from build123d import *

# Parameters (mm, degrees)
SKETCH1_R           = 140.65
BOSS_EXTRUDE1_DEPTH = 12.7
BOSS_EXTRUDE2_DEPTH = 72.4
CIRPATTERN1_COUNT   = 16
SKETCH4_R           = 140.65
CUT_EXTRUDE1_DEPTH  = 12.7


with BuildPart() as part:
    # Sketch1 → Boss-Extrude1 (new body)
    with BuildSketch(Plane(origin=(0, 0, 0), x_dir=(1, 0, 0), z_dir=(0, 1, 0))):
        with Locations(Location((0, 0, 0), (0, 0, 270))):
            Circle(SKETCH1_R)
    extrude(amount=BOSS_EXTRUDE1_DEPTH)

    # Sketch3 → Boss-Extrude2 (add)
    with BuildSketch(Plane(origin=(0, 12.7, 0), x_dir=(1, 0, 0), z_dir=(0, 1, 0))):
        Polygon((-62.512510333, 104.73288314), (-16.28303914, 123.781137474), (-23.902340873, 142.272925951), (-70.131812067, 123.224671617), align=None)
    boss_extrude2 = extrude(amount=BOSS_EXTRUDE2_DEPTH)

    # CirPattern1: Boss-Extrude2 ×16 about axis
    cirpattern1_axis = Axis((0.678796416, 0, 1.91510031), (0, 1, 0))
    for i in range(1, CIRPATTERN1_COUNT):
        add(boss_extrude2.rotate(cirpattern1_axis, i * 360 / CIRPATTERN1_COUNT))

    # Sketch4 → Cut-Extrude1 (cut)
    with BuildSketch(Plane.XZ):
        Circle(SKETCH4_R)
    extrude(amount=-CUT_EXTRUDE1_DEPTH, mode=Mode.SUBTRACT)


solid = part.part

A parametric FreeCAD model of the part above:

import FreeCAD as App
import Part
import Sketcher
from FreeCAD import Vector

doc = App.newDocument("Part")
params = doc.addObject("Spreadsheet::Sheet", "Params")
for row, (alias, value) in enumerate([
    ("sketch1_diameter", "281.3 mm"),
    ("pad1_length", "12.7 mm"),
    ("sketch2_length", "50 mm"),
    ("sketch2_length2", "20 mm"),
    ("pad2_length", "72.4 mm"),
    ("sketch3_diameter", "281.3 mm"),
    ("pocket1_length", "12.7 mm"),
], start=1):
    params.set(f"A{row}", alias)
    params.set(f"B{row}", "=" + value)
    params.setAlias(f"B{row}", alias)

body = doc.addObject("PartDesign::Body", "Body")

# Sketch on XZ plane
sketch1 = body.newObject("Sketcher::SketchObject", "Sketch")
sketch1.AttachmentSupport = (doc.getObject("XZ_Plane"), [""])
sketch1.MapMode = "FlatFace"
sketch1.addGeometry(Part.Circle(Vector(0, 0, 0), Vector(0, 0, 1), 141), False)
sketch1.addConstraint([
    Sketcher.Constraint("Coincident", 0, 3, -1, 1),
    Sketcher.Constraint("Diameter", 0, 281.3),
])
sketch1.setExpression("Constraints[1]", "Params.sketch1_diameter")
pad1 = body.newObject("PartDesign::Pad", "Pad")
pad1.Profile = sketch1
pad1.setExpression("Length", "Params.pad1_length")
pad1.Reversed = True

# Sketch on XZ plane
sketch2 = body.newObject("Sketcher::SketchObject", "Sketch001")
sketch2.AttachmentSupport = (doc.getObject("XZ_Plane"), [""])
sketch2.MapMode = "FlatFace"
sketch2.AttachmentOffset = App.Placement(Vector(0, 0, -12.7), App.Rotation())
sketch2.addGeometry([
    Part.LineSegment(Vector(-63, -105, 0), Vector(-16, -124, 0)),
    Part.LineSegment(Vector(-16, -124, 0), Vector(-24, -142, 0)),
    Part.LineSegment(Vector(-24, -142, 0), Vector(-70, -123, 0)),
    Part.LineSegment(Vector(-70, -123, 0), Vector(-63, -105, 0)),
], False)
sketch2.addConstraint([
    Sketcher.Constraint("Coincident", 0, 2, 1, 1),
    Sketcher.Constraint("Coincident", 1, 2, 2, 1),
    Sketcher.Constraint("Coincident", 2, 2, 3, 1),
    Sketcher.Constraint("Coincident", 3, 2, 0, 1),
    Sketcher.Constraint("Perpendicular", 0, 1),
    Sketcher.Constraint("Perpendicular", 1, 2),
    Sketcher.Constraint("Perpendicular", 2, 3),
    Sketcher.Constraint("Distance", 0, 50.0),
    Sketcher.Constraint("Distance", 1, 20.0),
    Sketcher.Constraint("DistanceX", 1, 2, 0, 2, 7.619302),
    Sketcher.Constraint("DistanceX", 0, 2, -1, 1, 16.283039),
    Sketcher.Constraint("DistanceY", 2, 2, -1, 1, 123.224672),
])
sketch2.setExpression("Constraints[7]", "Params.sketch2_length")
sketch2.setExpression("Constraints[8]", "Params.sketch2_length2")
pad2 = body.newObject("PartDesign::Pad", "Pad001")
pad2.Profile = sketch2
pad2.setExpression("Length", "Params.pad2_length")
pad2.Reversed = True
doc.recompute()

datumline = body.newObject("PartDesign::Line", "DatumLine")
datumline.Placement = App.Placement(Vector(0.678796, 0, 1.9151), App.Rotation(Vector(0, 0, 1), Vector(0, 1, 0)))
polarpattern = body.newObject("PartDesign::PolarPattern", "PolarPattern")
polarpattern.Originals = [pad2]
polarpattern.Axis = (datumline, [""])
polarpattern.Angle = 360
polarpattern.Occurrences = 16
body.Tip = polarpattern

# Sketch on XZ plane
sketch3 = body.newObject("Sketcher::SketchObject", "Sketch002")
sketch3.AttachmentSupport = (doc.getObject("XZ_Plane"), [""])
sketch3.MapMode = "FlatFace"
sketch3.addGeometry(Part.Circle(Vector(0, 0, 0), Vector(0, 0, 1), 141), False)
sketch3.addConstraint([
    Sketcher.Constraint("Coincident", 0, 3, -1, 1),
    Sketcher.Constraint("Diameter", 0, 281.3),
])
sketch3.setExpression("Constraints[1]", "Params.sketch3_diameter")
pocket1 = body.newObject("PartDesign::Pocket", "Pocket")
pocket1.Profile = sketch3
pocket1.setExpression("Length", "Params.pocket1_length")

doc.recompute()
